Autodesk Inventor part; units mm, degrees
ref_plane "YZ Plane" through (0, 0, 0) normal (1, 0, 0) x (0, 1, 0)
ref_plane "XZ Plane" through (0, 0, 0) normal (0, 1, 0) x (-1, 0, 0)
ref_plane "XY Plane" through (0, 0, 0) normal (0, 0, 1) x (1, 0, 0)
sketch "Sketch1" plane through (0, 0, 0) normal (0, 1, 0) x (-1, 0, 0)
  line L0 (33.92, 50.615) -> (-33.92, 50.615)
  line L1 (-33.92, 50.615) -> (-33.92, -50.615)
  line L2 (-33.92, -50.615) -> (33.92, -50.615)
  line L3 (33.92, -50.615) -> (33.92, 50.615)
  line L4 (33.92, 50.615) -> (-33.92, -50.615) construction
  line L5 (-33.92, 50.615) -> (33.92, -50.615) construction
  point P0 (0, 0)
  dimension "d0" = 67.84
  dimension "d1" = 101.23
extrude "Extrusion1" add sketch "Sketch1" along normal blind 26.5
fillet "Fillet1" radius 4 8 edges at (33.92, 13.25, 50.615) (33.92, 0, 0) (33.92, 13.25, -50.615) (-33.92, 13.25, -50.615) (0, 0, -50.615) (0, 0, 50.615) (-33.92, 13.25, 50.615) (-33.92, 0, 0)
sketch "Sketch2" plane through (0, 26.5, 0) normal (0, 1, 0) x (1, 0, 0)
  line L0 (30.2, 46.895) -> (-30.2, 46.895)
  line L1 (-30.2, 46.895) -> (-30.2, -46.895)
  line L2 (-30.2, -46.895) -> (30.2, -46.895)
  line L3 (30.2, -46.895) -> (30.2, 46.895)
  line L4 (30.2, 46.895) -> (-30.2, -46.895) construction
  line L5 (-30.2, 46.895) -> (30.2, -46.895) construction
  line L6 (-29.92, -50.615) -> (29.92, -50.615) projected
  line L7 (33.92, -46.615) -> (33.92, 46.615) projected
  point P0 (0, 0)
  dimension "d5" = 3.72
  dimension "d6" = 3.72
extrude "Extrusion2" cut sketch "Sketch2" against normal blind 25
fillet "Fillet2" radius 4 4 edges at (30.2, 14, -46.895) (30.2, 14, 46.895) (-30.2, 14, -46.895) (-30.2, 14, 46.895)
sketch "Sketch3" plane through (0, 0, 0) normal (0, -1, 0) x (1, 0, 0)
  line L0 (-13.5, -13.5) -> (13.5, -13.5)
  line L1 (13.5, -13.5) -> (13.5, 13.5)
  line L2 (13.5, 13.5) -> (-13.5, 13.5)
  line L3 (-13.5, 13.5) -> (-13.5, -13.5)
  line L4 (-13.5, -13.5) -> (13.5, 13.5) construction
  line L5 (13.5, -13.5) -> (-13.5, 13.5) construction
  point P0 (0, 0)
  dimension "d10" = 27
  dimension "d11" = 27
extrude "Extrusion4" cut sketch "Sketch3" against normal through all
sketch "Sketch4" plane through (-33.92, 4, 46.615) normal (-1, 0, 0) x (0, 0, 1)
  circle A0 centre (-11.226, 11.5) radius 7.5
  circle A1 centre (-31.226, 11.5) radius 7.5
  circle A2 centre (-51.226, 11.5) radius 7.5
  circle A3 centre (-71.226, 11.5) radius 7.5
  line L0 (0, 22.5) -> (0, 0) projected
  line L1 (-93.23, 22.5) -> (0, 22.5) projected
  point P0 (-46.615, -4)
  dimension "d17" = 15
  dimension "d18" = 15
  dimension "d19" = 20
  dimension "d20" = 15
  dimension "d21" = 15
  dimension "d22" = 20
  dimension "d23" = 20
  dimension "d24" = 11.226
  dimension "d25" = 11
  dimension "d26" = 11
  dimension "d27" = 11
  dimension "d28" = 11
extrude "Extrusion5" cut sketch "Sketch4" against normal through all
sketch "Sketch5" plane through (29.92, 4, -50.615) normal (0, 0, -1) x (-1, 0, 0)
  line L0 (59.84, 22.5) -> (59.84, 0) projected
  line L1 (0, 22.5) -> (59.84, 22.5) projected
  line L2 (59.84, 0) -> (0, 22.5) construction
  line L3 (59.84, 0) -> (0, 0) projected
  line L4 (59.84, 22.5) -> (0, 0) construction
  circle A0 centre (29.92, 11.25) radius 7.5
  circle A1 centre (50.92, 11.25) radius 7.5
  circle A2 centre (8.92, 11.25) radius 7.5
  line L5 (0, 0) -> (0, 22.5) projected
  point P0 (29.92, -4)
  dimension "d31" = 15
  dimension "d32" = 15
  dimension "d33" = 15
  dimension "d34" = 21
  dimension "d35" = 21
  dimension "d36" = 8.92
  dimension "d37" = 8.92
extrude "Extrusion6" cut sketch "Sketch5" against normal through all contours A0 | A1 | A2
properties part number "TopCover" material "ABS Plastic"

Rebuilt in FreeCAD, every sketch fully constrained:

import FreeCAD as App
import Part
import Sketcher
from FreeCAD import Vector


def edges_at(feature, points):
    """Names of the edges that pass closest to the given points."""
    edges = feature.Shape.Edges
    near = lambda p: min(range(len(edges)), key=lambda i: edges[i].distToShape(Part.Vertex(*p))[0])
    return sorted({f"Edge{near(p) + 1}" for p in points})


def add_polygon(sketch, points):
    """Adds a closed chain of lines whose ends are joined by coincident constraints."""
    first, n = sketch.GeometryCount, len(points)
    for a, b in zip(points, points[1:] + points[:1]):
        sketch.addGeometry(Part.LineSegment(App.Vector(*a, 0), App.Vector(*b, 0)), False)
    for i in range(n):
        sketch.addConstraint(Sketcher.Constraint("Coincident", first + i, 2, first + (i + 1) % n, 1))

doc = App.newDocument("Part")
params = doc.addObject("Spreadsheet::Sheet", "Params")
for row, (alias, value) in enumerate([
    ("sketch1_width", "67.84 mm"),
    ("sketch1_height", "101.23 mm"),
    ("pad1_length", "26.5 mm"),
    ("fillet_radius", "4 mm"),
    ("sketch2_width", "60.4 mm"),
    ("sketch2_height", "93.79 mm"),
    ("pocket1_length", "25 mm"),
    ("fillet2_radius", "4 mm"),
    ("sketch3_width", "27 mm"),
    ("sketch4_diameter", "15 mm"),
    ("sketch5_diameter", "15 mm"),
], start=1):
    params.set(f"A{row}", alias)
    params.set(f"B{row}", "=" + value)
    params.setAlias(f"B{row}", alias)

body = doc.addObject("PartDesign::Body", "Body")

sketch1 = body.newObject("Sketcher::SketchObject", "Sketch")
sketch1.AttachmentSupport = (doc.getObject("XZ_Plane"), [""])
sketch1.MapMode = "FlatFace"
add_polygon(sketch1, [(-33.92, -50.615), (-33.92, 50.615), (33.92, 50.615), (33.92, -50.615)])
sketch1.addConstraint([
    Sketcher.Constraint("Vertical", 0),
    Sketcher.Constraint("Horizontal", 1),
    Sketcher.Constraint("Vertical", 2),
    Sketcher.Constraint("Horizontal", 3),
    Sketcher.Constraint("Symmetric", 0, 2, 2, 2, -1, 1),
    Sketcher.Constraint("DistanceX", 1, 1, 1, 2, 67.84),
    Sketcher.Constraint("DistanceY", 0, 1, 0, 2, 101.23),
])
sketch1.setExpression("Constraints[9]", "Params.sketch1_width")
sketch1.setExpression("Constraints[10]", "Params.sketch1_height")
pad1 = body.newObject("PartDesign::Pad", "Pad")
pad1.Profile = sketch1
pad1.setExpression("Length", "Params.pad1_length")
pad1.Reversed = True
doc.recompute()

fillet = body.newObject("PartDesign::Fillet", "Fillet")
fillet.Base = (pad1, edges_at(pad1, [
    (33.92, 13.25, 50.615),
    (33.92, 0, 0),
    (33.92, 13.25, -50.615),
    (-33.92, 13.25, -50.615),
    (0, 0, -50.615),
    (0, 0, 50.615),
    (-33.92, 13.25, 50.615),
    (-33.92, 0, 0),
]))
fillet.setExpression("Radius", "Params.fillet_radius")

sketch2 = body.newObject("Sketcher::SketchObject", "Sketch001")
sketch2.AttachmentSupport = (doc.getObject("XZ_Plane"), [""])
sketch2.MapMode = "FlatFace"
sketch2.AttachmentOffset = App.Placement(Vector(0, 0, -26.5), App.Rotation())
add_polygon(sketch2, [(30.2, 46.895), (30.2, -46.895), (-30.2, -46.895), (-30.2, 46.895)])
sketch2.addConstraint([
    Sketcher.Constraint("Vertical", 0),
    Sketcher.Constraint("Horizontal", 1),
    Sketcher.Constraint("Vertical", 2),
    Sketcher.Constraint("Horizontal", 3),
    Sketcher.Constraint("Symmetric", 0, 2, 2, 2, -1, 1),
    Sketcher.Constraint("DistanceX", 1, 2, 1, 1, 60.4),
    Sketcher.Constraint("DistanceY", 0, 2, 0, 1, 93.79),
])
sketch2.setExpression("Constraints[9]", "Params.sketch2_width")
sketch2.setExpression("Constraints[10]", "Params.sketch2_height")
pocket1 = body.newObject("PartDesign::Pocket", "Pocket")
pocket1.Profile = sketch2
pocket1.setExpression("Length", "Params.pocket1_length")
pocket1.Reversed = True
doc.recompute()

fillet2 = body.newObject("PartDesign::Fillet", "Fillet001")
fillet2.Base = (pocket1, edges_at(pocket1, [
    (30.2, 14, -46.895),
    (30.2, 14, 46.895),
    (-30.2, 14, -46.895),
    (-30.2, 14, 46.895),
]))
fillet2.setExpression("Radius", "Params.fillet2_radius")

sketch3 = body.newObject("Sketcher::SketchObject", "Sketch002")
sketch3.AttachmentSupport = (doc.getObject("XZ_Plane"), [""])
sketch3.MapMode = "FlatFace"
add_polygon(sketch3, [(-13.5, 13.5), (-13.5, -13.5), (13.5, -13.5), (13.5, 13.5)])
sketch3.addConstraint([
    Sketcher.Constraint("Vertical", 0),
    Sketcher.Constraint("Horizontal", 1),
    Sketcher.Constraint("Vertical", 2),
    Sketcher.Constraint("Horizontal", 3),
    Sketcher.Constraint("Symmetric", 0, 2, 2, 2, -1, 1),
    Sketcher.Constraint("Equal", 3, 0),
    Sketcher.Constraint("DistanceX", 1, 1, 1, 2, 27.0),
])
sketch3.setExpression("Constraints[10]", "Params.sketch3_width")
pocket2 = body.newObject("PartDesign::Pocket", "Pocket001")
pocket2.Profile = sketch3
pocket2.Type = "ThroughAll"

sketch4 = body.newObject("Sketcher::SketchObject", "Sketch003")
sketch4.AttachmentSupport = (doc.getObject("YZ_Plane"), [""])
sketch4.MapMode = "FlatFace"
sketch4.AttachmentOffset = App.Placement(Vector(0, 0, -33.92), App.Rotation())
sketch4.addGeometry([
    Part.Circle(Vector(15.5, 35.389, 0), Vector(0, 0, 1), 7.5),
    Part.Circle(Vector(15.5, 15.389, 0), Vector(0, 0, 1), 7.5),
    Part.Circle(Vector(15.5, -4.611, 0), Vector(0, 0, 1), 7.5),
    Part.Circle(Vector(15.5, -24.611, 0), Vector(0, 0, 1), 7.5),
], False)
sketch4.addConstraint([
    Sketcher.Constraint("Equal", 0, 1),
    Sketcher.Constraint("Equal", 1, 2),
    Sketcher.Constraint("Equal", 2, 3),
    Sketcher.Constraint("Vertical", 0, 3, 1, 3),
    Sketcher.Constraint("Vertical", 1, 3, 2, 3),
    Sketcher.Constraint("Vertical", 2, 3, 3, 3),
    Sketcher.Constraint("Diameter", 0, 15.0),
    Sketcher.Constraint("DistanceY", 1, 3, 0, 3, 20.0),
    Sketcher.Constraint("DistanceY", 2, 3, 1, 3, 20.0),
    Sketcher.Constraint("DistanceY", 3, 3, 2, 3, 20.0),
    Sketcher.Constraint("DistanceX", -1, 1, 0, 3, 15.5),
    Sketcher.Constraint("DistanceY", -1, 1, 0, 3, 35.389),
])
sketch4.setExpression("Constraints[6]", "Params.sketch4_diameter")
pocket3 = body.newObject("PartDesign::Pocket", "Pocket002")
pocket3.Profile = sketch4
pocket3.Type = "ThroughAll"
pocket3.Reversed = True

sketch5 = body.newObject("Sketcher::SketchObject", "Sketch004")
sketch5.AttachmentSupport = (doc.getObject("XY_Plane"), [""])
sketch5.MapMode = "FlatFace"
sketch5.AttachmentOffset = App.Placement(Vector(0, 0, -50.615), App.Rotation())
sketch5.addGeometry([
    Part.Circle(Vector(0, 15.25, 0), Vector(0, 0, 1), 7.5),
    Part.Circle(Vector(-21, 15.25, 0), Vector(0, 0, 1), 7.5),
    Part.Circle(Vector(21, 15.25, 0), Vector(0, 0, 1), 7.5),
], False)
sketch5.addConstraint([
    Sketcher.Constraint("Equal", 0, 1),
    Sketcher.Constraint("Equal", 1, 2),
    Sketcher.Constraint("Symmetric", 1, 3, 2, 3, -2),
    Sketcher.Constraint("PointOnObject", 0, 3, -2),
    Sketcher.Constraint("Horizontal", 0, 3, 1, 3),
    Sketcher.Constraint("Diameter", 0, 15.0),
    Sketcher.Constraint("DistanceX", 1, 3, -1, 1, 21.0),
    Sketcher.Constraint("DistanceY", -1, 1, 0, 3, 15.25),
])
sketch5.setExpression("Constraints[5]", "Params.sketch5_diameter")
pocket4 = body.newObject("PartDesign::Pocket", "Pocket003")
pocket4.Profile = sketch5
pocket4.Type = "ThroughAll"
pocket4.Reversed = True

doc.recompute()
